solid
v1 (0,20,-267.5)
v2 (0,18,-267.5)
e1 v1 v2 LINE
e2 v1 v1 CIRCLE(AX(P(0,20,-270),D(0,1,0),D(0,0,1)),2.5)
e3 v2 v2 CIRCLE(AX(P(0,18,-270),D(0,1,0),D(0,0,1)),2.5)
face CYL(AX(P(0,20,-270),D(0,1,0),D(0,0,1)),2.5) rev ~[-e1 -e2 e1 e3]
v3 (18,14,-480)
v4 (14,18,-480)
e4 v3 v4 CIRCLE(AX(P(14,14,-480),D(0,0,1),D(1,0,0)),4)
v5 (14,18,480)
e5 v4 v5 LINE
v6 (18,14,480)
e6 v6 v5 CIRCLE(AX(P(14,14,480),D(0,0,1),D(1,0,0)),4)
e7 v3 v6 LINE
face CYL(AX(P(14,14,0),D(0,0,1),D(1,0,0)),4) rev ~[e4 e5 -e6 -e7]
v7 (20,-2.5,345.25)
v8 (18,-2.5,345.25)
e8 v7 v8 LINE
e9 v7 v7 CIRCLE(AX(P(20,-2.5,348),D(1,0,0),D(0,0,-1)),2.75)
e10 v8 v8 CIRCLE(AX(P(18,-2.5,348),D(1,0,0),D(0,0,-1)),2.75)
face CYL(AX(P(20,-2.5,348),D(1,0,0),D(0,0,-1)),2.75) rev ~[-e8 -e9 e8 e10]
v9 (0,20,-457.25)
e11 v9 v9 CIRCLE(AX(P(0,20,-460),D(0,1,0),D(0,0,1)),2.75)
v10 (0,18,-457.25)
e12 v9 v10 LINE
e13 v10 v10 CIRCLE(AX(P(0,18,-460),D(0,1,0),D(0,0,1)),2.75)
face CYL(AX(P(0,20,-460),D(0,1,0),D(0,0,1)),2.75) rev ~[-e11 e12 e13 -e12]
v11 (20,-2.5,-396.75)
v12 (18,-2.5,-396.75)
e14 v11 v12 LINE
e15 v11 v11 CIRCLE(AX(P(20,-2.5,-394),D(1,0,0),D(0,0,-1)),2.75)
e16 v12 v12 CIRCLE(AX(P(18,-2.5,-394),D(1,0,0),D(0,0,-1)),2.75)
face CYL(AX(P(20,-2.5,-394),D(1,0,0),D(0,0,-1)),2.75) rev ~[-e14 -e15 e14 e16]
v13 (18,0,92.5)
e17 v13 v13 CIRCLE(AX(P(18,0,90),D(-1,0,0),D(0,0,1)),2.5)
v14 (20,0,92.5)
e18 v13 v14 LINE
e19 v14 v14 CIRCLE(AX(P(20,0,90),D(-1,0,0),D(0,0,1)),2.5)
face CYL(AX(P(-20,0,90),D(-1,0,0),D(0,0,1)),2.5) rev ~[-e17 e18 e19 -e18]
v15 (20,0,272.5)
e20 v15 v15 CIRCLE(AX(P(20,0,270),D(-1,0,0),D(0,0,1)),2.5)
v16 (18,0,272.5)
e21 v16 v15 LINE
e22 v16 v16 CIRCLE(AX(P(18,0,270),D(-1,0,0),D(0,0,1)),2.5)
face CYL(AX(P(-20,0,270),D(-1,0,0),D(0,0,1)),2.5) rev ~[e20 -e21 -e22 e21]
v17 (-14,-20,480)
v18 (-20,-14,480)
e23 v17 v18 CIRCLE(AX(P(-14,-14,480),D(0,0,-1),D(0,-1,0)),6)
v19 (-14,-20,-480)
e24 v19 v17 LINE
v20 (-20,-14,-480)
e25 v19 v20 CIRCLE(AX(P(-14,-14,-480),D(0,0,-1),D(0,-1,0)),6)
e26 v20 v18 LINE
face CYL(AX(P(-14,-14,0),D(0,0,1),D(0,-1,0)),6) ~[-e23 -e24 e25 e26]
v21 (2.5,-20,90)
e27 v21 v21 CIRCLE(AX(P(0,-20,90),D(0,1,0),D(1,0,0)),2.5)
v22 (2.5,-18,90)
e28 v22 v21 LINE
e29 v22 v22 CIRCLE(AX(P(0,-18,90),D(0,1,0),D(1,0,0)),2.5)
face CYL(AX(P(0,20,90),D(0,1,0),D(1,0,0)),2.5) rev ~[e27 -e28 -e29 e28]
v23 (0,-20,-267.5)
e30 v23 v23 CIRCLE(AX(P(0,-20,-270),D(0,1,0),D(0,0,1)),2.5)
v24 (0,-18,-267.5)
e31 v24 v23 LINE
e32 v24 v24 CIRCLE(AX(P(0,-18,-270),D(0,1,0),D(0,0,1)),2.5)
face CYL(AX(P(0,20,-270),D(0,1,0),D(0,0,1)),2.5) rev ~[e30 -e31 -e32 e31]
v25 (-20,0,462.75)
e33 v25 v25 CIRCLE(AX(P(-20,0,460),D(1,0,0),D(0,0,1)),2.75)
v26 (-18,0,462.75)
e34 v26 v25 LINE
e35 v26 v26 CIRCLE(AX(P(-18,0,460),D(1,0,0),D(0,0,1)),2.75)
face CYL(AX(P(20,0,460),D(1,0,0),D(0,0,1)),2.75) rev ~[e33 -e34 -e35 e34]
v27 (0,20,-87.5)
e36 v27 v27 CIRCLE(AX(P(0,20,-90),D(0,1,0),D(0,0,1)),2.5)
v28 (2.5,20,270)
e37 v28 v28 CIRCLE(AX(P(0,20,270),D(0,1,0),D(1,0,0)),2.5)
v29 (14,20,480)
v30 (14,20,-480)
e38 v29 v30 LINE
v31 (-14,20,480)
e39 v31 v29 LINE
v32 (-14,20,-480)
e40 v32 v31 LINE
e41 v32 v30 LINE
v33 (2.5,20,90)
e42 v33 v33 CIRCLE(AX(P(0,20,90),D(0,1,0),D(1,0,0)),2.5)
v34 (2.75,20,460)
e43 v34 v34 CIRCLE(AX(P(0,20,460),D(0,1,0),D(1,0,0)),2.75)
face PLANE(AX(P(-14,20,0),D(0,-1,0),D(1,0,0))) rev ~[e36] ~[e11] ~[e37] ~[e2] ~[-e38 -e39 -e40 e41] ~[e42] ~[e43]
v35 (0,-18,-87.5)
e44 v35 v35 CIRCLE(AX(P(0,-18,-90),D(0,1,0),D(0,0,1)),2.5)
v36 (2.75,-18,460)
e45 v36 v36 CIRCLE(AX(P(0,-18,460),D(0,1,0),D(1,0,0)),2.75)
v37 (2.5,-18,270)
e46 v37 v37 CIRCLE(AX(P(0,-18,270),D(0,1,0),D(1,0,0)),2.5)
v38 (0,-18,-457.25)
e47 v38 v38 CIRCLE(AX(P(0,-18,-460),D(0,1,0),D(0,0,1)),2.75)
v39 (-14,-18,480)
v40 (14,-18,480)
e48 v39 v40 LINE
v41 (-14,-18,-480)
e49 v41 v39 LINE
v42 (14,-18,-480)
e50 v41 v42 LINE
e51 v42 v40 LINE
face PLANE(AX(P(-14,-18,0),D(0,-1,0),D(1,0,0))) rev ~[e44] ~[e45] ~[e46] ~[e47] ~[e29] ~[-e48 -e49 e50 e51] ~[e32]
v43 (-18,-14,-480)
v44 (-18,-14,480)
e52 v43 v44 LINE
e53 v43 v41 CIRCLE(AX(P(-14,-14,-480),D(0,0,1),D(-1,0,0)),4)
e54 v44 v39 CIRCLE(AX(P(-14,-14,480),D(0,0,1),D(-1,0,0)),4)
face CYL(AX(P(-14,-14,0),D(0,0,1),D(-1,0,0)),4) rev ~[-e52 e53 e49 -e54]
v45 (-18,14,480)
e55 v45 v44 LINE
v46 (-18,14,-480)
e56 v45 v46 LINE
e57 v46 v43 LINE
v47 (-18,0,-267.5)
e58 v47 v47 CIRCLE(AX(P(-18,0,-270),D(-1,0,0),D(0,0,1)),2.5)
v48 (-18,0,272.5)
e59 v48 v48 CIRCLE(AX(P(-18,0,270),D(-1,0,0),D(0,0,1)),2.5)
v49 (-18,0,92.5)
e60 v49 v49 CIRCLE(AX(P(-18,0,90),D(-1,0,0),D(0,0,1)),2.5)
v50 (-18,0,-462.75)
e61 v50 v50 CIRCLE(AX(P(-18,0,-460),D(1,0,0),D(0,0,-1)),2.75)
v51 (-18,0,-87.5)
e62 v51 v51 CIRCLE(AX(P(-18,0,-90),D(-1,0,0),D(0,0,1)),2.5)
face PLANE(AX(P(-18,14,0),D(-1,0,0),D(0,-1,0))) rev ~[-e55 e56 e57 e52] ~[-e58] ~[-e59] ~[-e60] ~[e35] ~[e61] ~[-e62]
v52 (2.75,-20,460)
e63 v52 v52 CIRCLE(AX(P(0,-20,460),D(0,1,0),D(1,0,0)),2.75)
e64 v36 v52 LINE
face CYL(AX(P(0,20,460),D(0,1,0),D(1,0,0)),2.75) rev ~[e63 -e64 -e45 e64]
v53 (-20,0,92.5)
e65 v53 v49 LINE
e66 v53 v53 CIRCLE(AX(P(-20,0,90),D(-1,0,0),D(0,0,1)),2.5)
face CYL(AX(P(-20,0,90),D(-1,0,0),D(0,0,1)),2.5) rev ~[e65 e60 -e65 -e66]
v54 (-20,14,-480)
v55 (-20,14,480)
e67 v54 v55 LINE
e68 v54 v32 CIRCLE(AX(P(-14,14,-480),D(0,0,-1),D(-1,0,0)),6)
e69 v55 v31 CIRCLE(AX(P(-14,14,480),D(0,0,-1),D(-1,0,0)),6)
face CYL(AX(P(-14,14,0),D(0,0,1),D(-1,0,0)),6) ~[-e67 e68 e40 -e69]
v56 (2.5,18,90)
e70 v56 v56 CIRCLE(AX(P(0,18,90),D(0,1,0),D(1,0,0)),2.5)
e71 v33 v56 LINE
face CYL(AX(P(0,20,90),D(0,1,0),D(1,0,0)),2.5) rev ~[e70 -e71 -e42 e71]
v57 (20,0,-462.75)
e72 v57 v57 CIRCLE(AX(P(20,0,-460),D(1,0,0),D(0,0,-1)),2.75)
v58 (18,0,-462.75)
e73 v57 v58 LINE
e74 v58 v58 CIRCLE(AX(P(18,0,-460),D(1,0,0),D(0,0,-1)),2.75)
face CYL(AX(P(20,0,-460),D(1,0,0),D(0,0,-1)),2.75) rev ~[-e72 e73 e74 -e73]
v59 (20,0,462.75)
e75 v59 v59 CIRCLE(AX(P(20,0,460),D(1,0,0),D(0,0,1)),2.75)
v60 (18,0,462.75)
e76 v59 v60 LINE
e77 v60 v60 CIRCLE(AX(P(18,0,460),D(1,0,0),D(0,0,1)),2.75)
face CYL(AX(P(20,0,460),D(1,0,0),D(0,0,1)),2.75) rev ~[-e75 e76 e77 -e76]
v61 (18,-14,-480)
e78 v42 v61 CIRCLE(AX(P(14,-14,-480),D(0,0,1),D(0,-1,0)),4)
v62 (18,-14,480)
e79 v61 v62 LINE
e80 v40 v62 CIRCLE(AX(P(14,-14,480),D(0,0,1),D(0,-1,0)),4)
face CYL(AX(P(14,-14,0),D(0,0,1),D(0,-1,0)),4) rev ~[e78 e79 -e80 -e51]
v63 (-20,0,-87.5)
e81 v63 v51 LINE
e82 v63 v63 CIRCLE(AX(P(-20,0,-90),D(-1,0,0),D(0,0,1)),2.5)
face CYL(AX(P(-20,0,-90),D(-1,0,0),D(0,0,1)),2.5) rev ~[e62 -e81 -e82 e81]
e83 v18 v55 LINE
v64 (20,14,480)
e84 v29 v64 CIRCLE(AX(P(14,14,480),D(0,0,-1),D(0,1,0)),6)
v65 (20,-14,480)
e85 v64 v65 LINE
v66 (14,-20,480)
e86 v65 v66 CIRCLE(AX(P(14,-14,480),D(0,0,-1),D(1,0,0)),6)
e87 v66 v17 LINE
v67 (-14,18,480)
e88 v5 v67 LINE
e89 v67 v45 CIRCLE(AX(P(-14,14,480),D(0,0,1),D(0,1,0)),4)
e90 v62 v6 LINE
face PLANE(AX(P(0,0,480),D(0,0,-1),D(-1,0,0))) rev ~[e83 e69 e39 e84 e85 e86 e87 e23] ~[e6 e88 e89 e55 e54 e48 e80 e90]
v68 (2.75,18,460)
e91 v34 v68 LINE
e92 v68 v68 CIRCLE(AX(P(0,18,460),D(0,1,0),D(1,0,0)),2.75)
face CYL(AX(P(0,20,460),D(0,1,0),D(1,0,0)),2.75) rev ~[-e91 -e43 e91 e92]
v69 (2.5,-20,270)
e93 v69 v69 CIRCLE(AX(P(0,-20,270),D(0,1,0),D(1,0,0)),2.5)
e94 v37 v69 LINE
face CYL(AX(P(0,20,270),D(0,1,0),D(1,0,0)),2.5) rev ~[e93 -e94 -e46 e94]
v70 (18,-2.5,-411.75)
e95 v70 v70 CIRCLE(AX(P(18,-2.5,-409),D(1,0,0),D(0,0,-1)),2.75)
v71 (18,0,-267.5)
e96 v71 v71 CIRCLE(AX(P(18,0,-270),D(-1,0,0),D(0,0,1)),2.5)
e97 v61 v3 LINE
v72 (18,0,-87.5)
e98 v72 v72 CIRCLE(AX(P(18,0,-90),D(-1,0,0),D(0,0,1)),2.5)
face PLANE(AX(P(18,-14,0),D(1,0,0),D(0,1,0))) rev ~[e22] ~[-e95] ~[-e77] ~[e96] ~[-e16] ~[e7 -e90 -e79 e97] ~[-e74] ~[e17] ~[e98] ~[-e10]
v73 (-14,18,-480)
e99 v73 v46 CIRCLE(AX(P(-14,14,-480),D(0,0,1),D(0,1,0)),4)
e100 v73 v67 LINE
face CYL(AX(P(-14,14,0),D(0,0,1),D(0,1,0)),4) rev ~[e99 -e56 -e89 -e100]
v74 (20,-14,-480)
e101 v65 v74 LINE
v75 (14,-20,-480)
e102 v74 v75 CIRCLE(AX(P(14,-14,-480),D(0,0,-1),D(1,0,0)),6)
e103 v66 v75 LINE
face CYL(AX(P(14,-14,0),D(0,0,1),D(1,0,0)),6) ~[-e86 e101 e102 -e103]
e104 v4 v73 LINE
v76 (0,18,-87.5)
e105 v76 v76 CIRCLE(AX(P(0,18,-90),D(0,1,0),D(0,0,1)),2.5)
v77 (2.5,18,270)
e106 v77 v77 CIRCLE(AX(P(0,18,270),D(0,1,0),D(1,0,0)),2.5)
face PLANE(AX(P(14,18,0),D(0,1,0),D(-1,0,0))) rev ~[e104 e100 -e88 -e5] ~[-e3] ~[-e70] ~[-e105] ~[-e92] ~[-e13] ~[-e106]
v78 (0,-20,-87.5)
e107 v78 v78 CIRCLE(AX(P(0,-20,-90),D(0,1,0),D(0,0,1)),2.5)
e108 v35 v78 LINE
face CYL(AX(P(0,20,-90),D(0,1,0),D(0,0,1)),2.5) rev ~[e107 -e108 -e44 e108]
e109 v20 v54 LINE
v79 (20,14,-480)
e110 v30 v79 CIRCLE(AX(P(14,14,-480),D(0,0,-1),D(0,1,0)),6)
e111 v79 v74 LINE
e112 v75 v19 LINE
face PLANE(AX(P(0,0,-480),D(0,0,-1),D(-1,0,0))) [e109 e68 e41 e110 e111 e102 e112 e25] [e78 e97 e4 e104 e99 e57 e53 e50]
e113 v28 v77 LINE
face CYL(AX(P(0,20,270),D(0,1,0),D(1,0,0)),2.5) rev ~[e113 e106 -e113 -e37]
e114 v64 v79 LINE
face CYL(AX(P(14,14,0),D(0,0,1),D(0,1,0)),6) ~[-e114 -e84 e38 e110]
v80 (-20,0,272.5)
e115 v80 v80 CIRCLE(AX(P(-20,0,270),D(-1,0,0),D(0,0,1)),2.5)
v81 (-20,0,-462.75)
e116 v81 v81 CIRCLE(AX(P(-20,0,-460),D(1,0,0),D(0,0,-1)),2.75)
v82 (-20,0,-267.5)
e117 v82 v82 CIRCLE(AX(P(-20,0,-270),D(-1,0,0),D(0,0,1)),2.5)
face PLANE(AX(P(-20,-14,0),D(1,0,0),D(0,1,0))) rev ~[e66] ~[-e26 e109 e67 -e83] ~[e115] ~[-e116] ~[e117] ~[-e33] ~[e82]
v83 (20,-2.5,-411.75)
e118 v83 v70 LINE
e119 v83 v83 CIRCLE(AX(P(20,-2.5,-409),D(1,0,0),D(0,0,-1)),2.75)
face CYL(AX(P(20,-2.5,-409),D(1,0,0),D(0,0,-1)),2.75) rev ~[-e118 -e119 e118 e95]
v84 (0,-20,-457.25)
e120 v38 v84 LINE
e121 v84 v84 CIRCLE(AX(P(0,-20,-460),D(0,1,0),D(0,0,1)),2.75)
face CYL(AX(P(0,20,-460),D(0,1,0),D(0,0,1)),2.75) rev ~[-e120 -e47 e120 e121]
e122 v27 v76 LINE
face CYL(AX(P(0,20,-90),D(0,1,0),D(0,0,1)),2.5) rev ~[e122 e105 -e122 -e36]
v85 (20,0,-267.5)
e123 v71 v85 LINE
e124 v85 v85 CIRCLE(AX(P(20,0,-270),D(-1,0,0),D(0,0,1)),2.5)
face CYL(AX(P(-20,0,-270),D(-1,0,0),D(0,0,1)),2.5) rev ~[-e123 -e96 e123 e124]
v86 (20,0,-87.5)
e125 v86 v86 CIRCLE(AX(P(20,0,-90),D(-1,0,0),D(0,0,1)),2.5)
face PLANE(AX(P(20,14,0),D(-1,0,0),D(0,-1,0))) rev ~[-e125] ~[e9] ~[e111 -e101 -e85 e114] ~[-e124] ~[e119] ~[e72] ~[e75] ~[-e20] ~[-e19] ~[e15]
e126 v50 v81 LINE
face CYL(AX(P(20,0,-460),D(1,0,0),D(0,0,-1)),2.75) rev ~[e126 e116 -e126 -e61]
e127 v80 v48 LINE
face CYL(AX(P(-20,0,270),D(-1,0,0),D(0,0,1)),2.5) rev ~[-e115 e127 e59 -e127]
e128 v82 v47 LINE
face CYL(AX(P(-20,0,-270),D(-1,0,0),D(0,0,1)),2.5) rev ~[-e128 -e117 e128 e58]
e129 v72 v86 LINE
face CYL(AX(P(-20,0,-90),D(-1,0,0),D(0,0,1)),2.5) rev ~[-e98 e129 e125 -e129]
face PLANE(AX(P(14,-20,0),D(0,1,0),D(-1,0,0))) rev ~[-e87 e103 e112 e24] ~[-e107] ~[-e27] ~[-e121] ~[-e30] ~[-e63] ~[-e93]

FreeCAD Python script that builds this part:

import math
import FreeCAD as App
import Part
import Sketcher
from FreeCAD import Vector
Q = App.Units.Quantity

doc = App.newDocument("Part")
params = doc.addObject("Spreadsheet::Sheet", "Params")
for row, (alias, value) in enumerate([
    ("sketch1_radius", "6 mm"),
    ("sketch1_radius2", "4 mm"),
    ("sketch1_width", "28 mm"),
    ("pad1_length", "960 mm"),
    ("sketch2_diameter", "5.5 mm"),
    ("pocket1_length", "100 mm"),
    ("sketch3_diameter", "5.5 mm"),
    ("pocket2_length", "100 mm"),
    ("sketch4_diameter", "5.5 mm"),
    ("pocket3_length", "10 mm"),
    ("sketch5_diameter", "5 mm"),
    ("pocket4_length", "60 mm"),
    ("sketch6_diameter", "5 mm"),
    ("pocket5_length", "100 mm"),
], start=1):
    params.set(f"A{row}", alias)
    params.set(f"B{row}", "=" + value)
    params.setAlias(f"B{row}", alias)

body = doc.addObject("PartDesign::Body", "Body")

# Sketch on XY plane
sketch1 = body.newObject("Sketcher::SketchObject", "Sketch")
sketch1.AttachmentSupport = (doc.getObject("XY_Plane"), [""])
sketch1.MapMode = "FlatFace"
sketch1.addGeometry([
    Part.LineSegment(Vector(14, 20, 0), Vector(-14, 20, 0)),  # 0
    Part.ArcOfCircle(Part.Circle(Vector(-14, 14, 0), Vector(0, 0, 1), 6), math.radians(90), math.radians(180)),  # 1
    Part.LineSegment(Vector(-20, 14, 0), Vector(-20, -14, 0)),  # 2
    Part.ArcOfCircle(Part.Circle(Vector(-14, -14, 0), Vector(0, 0, 1), 6), math.radians(180), math.radians(270)),  # 3
    Part.LineSegment(Vector(-14, -20, 0), Vector(14, -20, 0)),  # 4
    Part.ArcOfCircle(Part.Circle(Vector(14, -14, 0), Vector(0, 0, 1), 6), math.radians(-90), math.radians(0)),  # 5
    Part.LineSegment(Vector(20, -14, 0), Vector(20, 14, 0)),  # 6
    Part.ArcOfCircle(Part.Circle(Vector(14, 14, 0), Vector(0, 0, 1), 6), math.radians(0), math.radians(90)),  # 7
    Part.ArcOfCircle(Part.Circle(Vector(-14, 14, 0), Vector(0, 0, 1), 4), math.radians(90), math.radians(180)),  # 8
    Part.LineSegment(Vector(-14, 18, 0), Vector(14, 18, 0)),  # 9
    Part.ArcOfCircle(Part.Circle(Vector(14, 14, 0), Vector(0, 0, 1), 4), math.radians(0), math.radians(90)),  # 10
    Part.LineSegment(Vector(18, 14, 0), Vector(18, -14, 0)),  # 11
    Part.ArcOfCircle(Part.Circle(Vector(14, -14, 0), Vector(0, 0, 1), 4), math.radians(-90), math.radians(0)),  # 12
    Part.LineSegment(Vector(14, -18, 0), Vector(-14, -18, 0)),  # 13
    Part.ArcOfCircle(Part.Circle(Vector(-14, -14, 0), Vector(0, 0, 1), 4), math.radians(180), math.radians(270)),  # 14
    Part.LineSegment(Vector(-18, -14, 0), Vector(-18, 14, 0)),  # 15
], False)
sketch1.addConstraint([
    Sketcher.Constraint("Tangent", 0, 2, 1, 1),
    Sketcher.Constraint("Tangent", 1, 2, 2, 1),
    Sketcher.Constraint("Tangent", 2, 2, 3, 1),
    Sketcher.Constraint("Tangent", 3, 2, 4, 1),
    Sketcher.Constraint("Tangent", 4, 2, 5, 1),
    Sketcher.Constraint("Tangent", 5, 2, 6, 1),
    Sketcher.Constraint("Tangent", 6, 2, 7, 1),
    Sketcher.Constraint("Tangent", 7, 2, 0, 1),
    Sketcher.Constraint("Tangent", 8, 1, 9, 1),
    Sketcher.Constraint("Tangent", 9, 2, 10, 2),
    Sketcher.Constraint("Tangent", 10, 1, 11, 1),
    Sketcher.Constraint("Tangent", 11, 2, 12, 2),
    Sketcher.Constraint("Tangent", 12, 1, 13, 1),
    Sketcher.Constraint("Tangent", 13, 2, 14, 2),
    Sketcher.Constraint("Tangent", 14, 1, 15, 1),
    Sketcher.Constraint("Tangent", 15, 2, 8, 2),
    Sketcher.Constraint("Horizontal", 0),
    Sketcher.Constraint("Vertical", 2),
    Sketcher.Constraint("Horizontal", 4),
    Sketcher.Constraint("Vertical", 6),
    Sketcher.Constraint("Horizontal", 9),
    Sketcher.Constraint("Vertical", 11),
    Sketcher.Constraint("Horizontal", 13),
    Sketcher.Constraint("Vertical", 15),
    Sketcher.Constraint("Coincident", 8, 3, 1, 3),
    Sketcher.Constraint("Coincident", 10, 3, 7, 3),
    Sketcher.Constraint("Coincident", 12, 3, 5, 3),
    Sketcher.Constraint("Equal", 1, 3),
    Sketcher.Constraint("Equal", 3, 5),
    Sketcher.Constraint("Equal", 5, 7),
    Sketcher.Constraint("Equal", 12, 14),
    Sketcher.Constraint("Symmetric", 1, 3, 5, 3, -1, 1),
    Sketcher.Constraint("Equal", 13, 2),
    Sketcher.Constraint("Radius", 1, Q("6 mm")),
    Sketcher.Constraint("Radius", 8, Q("4 mm")),
    Sketcher.Constraint("DistanceX", 0, 2, 0, 1, Q("28 mm")),
])
sketch1.setExpression("Constraints[33]", "Params.sketch1_radius")
sketch1.setExpression("Constraints[34]", "Params.sketch1_radius2")
sketch1.setExpression("Constraints[35]", "Params.sketch1_width")
pad1 = body.newObject("PartDesign::Pad", "Pad")
pad1.Profile = sketch1
pad1.setExpression("Length", "Params.pad1_length")
pad1.Midplane = True

# Sketch on XZ plane
sketch2 = body.newObject("Sketcher::SketchObject", "Sketch001")
sketch2.AttachmentSupport = (doc.getObject("XZ_Plane"), [""])
sketch2.MapMode = "FlatFace"
sketch2.AttachmentOffset = App.Placement(Vector(0, 0, -20), App.Rotation())
sketch2.addGeometry([
    Part.Circle(Vector(0, -460, 0), Vector(0, 0, 1), 2.8),
    Part.Circle(Vector(0, 460, 0), Vector(0, 0, 1), 2.8),
], False)
sketch2.addConstraint([
    Sketcher.Constraint("Equal", 0, 1),
    Sketcher.Constraint("Symmetric", 0, 3, 1, 3, -1, 1),
    Sketcher.Constraint("PointOnObject", 0, 3, -2),
    Sketcher.Constraint("Diameter", 0, Q("5.5 mm")),
    Sketcher.Constraint("DistanceY", 0, 3, -1, 1, Q("460 mm")),
])
sketch2.setExpression("Constraints[3]", "Params.sketch2_diameter")
pocket1 = body.newObject("PartDesign::Pocket", "Pocket")
pocket1.Profile = sketch2
pocket1.setExpression("Length", "Params.pocket1_length")
pocket1.Reversed = True

# Sketch on YZ plane
sketch3 = body.newObject("Sketcher::SketchObject", "Sketch002")
sketch3.AttachmentSupport = (doc.getObject("YZ_Plane"), [""])
sketch3.MapMode = "FlatFace"
sketch3.AttachmentOffset = App.Placement(Vector(0, 0, 20), App.Rotation())
sketch3.addGeometry([
    Part.Circle(Vector(0, -460, 0), Vector(0, 0, 1), 2.8),
    Part.Circle(Vector(0, 460, 0), Vector(0, 0, 1), 2.8),
], False)
sketch3.addConstraint([
    Sketcher.Constraint("Equal", 0, 1),
    Sketcher.Constraint("Symmetric", 0, 3, 1, 3, -1, 1),
    Sketcher.Constraint("PointOnObject", 0, 3, -2),
    Sketcher.Constraint("Diameter", 0, Q("5.5 mm")),
    Sketcher.Constraint("DistanceY", 0, 3, -1, 1, Q("460 mm")),
])
sketch3.setExpression("Constraints[3]", "Params.sketch3_diameter")
pocket2 = body.newObject("PartDesign::Pocket", "Pocket001")
pocket2.Profile = sketch3
pocket2.setExpression("Length", "Params.pocket2_length")

# Sketch on YZ plane
sketch4 = body.newObject("Sketcher::SketchObject", "Sketch003")
sketch4.AttachmentSupport = (doc.getObject("YZ_Plane"), [""])
sketch4.MapMode = "FlatFace"
sketch4.AttachmentOffset = App.Placement(Vector(0, 0, 20), App.Rotation())
sketch4.addGeometry([
    Part.Circle(Vector(-2.5, -409, 0), Vector(0, 0, 1), 2.8),
    Part.Circle(Vector(-2.5, -394, 0), Vector(0, 0, 1), 2.8),
    Part.Circle(Vector(-2.5, 348, 0), Vector(0, 0, 1), 2.8),
], False)
sketch4.addConstraint([
    Sketcher.Constraint("Equal", 0, 1),
    Sketcher.Constraint("Equal", 1, 2),
    Sketcher.Constraint("Vertical", 0, 3, 1, 3),
    Sketcher.Constraint("Vertical", 1, 3, 2, 3),
    Sketcher.Constraint("Diameter", 0, Q("5.5 mm")),
    Sketcher.Constraint("DistanceY", 0, 3, -1, 1, Q("409 mm")),
    Sketcher.Constraint("DistanceY", 1, 3, -1, 1, Q("394 mm")),
    Sketcher.Constraint("DistanceY", -1, 1, 2, 3, Q("348 mm")),
    Sketcher.Constraint("DistanceX", 0, 3, -1, 1, Q("2.5 mm")),
])
sketch4.setExpression("Constraints[4]", "Params.sketch4_diameter")
pocket3 = body.newObject("PartDesign::Pocket", "Pocket002")
pocket3.Profile = sketch4
pocket3.setExpression("Length", "Params.pocket3_length")

# Sketch on XZ plane
sketch5 = body.newObject("Sketcher::SketchObject", "Sketch004")
sketch5.AttachmentSupport = (doc.getObject("XZ_Plane"), [""])
sketch5.MapMode = "FlatFace"
sketch5.AttachmentOffset = App.Placement(Vector(0, 0, -20), App.Rotation())
sketch5.addGeometry([
    Part.Circle(Vector(0, -270, 0), Vector(0, 0, 1), 2.5),
    Part.Circle(Vector(0, -90, 0), Vector(0, 0, 1), 2.5),
    Part.Circle(Vector(0, 270, 0), Vector(0, 0, 1), 2.5),
    Part.Circle(Vector(0, 90, 0), Vector(0, 0, 1), 2.5),
], False)
sketch5.addConstraint([
    Sketcher.Constraint("Equal", 0, 1),
    Sketcher.Constraint("Equal", 1, 2),
    Sketcher.Constraint("Equal", 2, 3),
    Sketcher.Constraint("Symmetric", 0, 3, 2, 3, -1, 1),
    Sketcher.Constraint("Symmetric", 1, 3, 3, 3, -1, 1),
    Sketcher.Constraint("PointOnObject", 0, 3, -2),
    Sketcher.Constraint("PointOnObject", 1, 3, -2),
    Sketcher.Constraint("Diameter", 0, Q("5 mm")),
    Sketcher.Constraint("DistanceY", 0, 3, -1, 1, Q("270 mm")),
    Sketcher.Constraint("DistanceY", 1, 3, -1, 1, Q("90 mm")),
])
sketch5.setExpression("Constraints[7]", "Params.sketch5_diameter")
pocket4 = body.newObject("PartDesign::Pocket", "Pocket003")
pocket4.Profile = sketch5
pocket4.setExpression("Length", "Params.pocket4_length")
pocket4.Reversed = True

# Sketch on YZ plane
sketch6 = body.newObject("Sketcher::SketchObject", "Sketch005")
sketch6.AttachmentSupport = (doc.getObject("YZ_Plane"), [""])
sketch6.MapMode = "FlatFace"
sketch6.AttachmentOffset = App.Placement(Vector(0, 0, -20), App.Rotation())
sketch6.addGeometry([
    Part.Circle(Vector(0, 270, 0), Vector(0, 0, 1), 2.5),
    Part.Circle(Vector(0, 90, 0), Vector(0, 0, 1), 2.5),
    Part.Circle(Vector(0, -270, 0), Vector(0, 0, 1), 2.5),
    Part.Circle(Vector(0, -90, 0), Vector(0, 0, 1), 2.5),
], False)
sketch6.addConstraint([
    Sketcher.Constraint("Equal", 0, 1),
    Sketcher.Constraint("Equal", 1, 2),
    Sketcher.Constraint("Equal", 2, 3),
    Sketcher.Constraint("Symmetric", 0, 3, 2, 3, -1, 1),
    Sketcher.Constraint("Symmetric", 1, 3, 3, 3, -1, 1),
    Sketcher.Constraint("PointOnObject", 0, 3, -2),
    Sketcher.Constraint("PointOnObject", 1, 3, -2),
    Sketcher.Constraint("Diameter", 0, Q("5 mm")),
    Sketcher.Constraint("DistanceY", -1, 1, 0, 3, Q("270 mm")),
    Sketcher.Constraint("DistanceY", -1, 1, 1, 3, Q("90 mm")),
])
sketch6.setExpression("Constraints[7]", "Params.sketch6_diameter")
pocket5 = body.newObject("PartDesign::Pocket", "Pocket004")
pocket5.Profile = sketch6
pocket5.setExpression("Length", "Params.pocket5_length")
pocket5.Reversed = True

doc.recompute()
